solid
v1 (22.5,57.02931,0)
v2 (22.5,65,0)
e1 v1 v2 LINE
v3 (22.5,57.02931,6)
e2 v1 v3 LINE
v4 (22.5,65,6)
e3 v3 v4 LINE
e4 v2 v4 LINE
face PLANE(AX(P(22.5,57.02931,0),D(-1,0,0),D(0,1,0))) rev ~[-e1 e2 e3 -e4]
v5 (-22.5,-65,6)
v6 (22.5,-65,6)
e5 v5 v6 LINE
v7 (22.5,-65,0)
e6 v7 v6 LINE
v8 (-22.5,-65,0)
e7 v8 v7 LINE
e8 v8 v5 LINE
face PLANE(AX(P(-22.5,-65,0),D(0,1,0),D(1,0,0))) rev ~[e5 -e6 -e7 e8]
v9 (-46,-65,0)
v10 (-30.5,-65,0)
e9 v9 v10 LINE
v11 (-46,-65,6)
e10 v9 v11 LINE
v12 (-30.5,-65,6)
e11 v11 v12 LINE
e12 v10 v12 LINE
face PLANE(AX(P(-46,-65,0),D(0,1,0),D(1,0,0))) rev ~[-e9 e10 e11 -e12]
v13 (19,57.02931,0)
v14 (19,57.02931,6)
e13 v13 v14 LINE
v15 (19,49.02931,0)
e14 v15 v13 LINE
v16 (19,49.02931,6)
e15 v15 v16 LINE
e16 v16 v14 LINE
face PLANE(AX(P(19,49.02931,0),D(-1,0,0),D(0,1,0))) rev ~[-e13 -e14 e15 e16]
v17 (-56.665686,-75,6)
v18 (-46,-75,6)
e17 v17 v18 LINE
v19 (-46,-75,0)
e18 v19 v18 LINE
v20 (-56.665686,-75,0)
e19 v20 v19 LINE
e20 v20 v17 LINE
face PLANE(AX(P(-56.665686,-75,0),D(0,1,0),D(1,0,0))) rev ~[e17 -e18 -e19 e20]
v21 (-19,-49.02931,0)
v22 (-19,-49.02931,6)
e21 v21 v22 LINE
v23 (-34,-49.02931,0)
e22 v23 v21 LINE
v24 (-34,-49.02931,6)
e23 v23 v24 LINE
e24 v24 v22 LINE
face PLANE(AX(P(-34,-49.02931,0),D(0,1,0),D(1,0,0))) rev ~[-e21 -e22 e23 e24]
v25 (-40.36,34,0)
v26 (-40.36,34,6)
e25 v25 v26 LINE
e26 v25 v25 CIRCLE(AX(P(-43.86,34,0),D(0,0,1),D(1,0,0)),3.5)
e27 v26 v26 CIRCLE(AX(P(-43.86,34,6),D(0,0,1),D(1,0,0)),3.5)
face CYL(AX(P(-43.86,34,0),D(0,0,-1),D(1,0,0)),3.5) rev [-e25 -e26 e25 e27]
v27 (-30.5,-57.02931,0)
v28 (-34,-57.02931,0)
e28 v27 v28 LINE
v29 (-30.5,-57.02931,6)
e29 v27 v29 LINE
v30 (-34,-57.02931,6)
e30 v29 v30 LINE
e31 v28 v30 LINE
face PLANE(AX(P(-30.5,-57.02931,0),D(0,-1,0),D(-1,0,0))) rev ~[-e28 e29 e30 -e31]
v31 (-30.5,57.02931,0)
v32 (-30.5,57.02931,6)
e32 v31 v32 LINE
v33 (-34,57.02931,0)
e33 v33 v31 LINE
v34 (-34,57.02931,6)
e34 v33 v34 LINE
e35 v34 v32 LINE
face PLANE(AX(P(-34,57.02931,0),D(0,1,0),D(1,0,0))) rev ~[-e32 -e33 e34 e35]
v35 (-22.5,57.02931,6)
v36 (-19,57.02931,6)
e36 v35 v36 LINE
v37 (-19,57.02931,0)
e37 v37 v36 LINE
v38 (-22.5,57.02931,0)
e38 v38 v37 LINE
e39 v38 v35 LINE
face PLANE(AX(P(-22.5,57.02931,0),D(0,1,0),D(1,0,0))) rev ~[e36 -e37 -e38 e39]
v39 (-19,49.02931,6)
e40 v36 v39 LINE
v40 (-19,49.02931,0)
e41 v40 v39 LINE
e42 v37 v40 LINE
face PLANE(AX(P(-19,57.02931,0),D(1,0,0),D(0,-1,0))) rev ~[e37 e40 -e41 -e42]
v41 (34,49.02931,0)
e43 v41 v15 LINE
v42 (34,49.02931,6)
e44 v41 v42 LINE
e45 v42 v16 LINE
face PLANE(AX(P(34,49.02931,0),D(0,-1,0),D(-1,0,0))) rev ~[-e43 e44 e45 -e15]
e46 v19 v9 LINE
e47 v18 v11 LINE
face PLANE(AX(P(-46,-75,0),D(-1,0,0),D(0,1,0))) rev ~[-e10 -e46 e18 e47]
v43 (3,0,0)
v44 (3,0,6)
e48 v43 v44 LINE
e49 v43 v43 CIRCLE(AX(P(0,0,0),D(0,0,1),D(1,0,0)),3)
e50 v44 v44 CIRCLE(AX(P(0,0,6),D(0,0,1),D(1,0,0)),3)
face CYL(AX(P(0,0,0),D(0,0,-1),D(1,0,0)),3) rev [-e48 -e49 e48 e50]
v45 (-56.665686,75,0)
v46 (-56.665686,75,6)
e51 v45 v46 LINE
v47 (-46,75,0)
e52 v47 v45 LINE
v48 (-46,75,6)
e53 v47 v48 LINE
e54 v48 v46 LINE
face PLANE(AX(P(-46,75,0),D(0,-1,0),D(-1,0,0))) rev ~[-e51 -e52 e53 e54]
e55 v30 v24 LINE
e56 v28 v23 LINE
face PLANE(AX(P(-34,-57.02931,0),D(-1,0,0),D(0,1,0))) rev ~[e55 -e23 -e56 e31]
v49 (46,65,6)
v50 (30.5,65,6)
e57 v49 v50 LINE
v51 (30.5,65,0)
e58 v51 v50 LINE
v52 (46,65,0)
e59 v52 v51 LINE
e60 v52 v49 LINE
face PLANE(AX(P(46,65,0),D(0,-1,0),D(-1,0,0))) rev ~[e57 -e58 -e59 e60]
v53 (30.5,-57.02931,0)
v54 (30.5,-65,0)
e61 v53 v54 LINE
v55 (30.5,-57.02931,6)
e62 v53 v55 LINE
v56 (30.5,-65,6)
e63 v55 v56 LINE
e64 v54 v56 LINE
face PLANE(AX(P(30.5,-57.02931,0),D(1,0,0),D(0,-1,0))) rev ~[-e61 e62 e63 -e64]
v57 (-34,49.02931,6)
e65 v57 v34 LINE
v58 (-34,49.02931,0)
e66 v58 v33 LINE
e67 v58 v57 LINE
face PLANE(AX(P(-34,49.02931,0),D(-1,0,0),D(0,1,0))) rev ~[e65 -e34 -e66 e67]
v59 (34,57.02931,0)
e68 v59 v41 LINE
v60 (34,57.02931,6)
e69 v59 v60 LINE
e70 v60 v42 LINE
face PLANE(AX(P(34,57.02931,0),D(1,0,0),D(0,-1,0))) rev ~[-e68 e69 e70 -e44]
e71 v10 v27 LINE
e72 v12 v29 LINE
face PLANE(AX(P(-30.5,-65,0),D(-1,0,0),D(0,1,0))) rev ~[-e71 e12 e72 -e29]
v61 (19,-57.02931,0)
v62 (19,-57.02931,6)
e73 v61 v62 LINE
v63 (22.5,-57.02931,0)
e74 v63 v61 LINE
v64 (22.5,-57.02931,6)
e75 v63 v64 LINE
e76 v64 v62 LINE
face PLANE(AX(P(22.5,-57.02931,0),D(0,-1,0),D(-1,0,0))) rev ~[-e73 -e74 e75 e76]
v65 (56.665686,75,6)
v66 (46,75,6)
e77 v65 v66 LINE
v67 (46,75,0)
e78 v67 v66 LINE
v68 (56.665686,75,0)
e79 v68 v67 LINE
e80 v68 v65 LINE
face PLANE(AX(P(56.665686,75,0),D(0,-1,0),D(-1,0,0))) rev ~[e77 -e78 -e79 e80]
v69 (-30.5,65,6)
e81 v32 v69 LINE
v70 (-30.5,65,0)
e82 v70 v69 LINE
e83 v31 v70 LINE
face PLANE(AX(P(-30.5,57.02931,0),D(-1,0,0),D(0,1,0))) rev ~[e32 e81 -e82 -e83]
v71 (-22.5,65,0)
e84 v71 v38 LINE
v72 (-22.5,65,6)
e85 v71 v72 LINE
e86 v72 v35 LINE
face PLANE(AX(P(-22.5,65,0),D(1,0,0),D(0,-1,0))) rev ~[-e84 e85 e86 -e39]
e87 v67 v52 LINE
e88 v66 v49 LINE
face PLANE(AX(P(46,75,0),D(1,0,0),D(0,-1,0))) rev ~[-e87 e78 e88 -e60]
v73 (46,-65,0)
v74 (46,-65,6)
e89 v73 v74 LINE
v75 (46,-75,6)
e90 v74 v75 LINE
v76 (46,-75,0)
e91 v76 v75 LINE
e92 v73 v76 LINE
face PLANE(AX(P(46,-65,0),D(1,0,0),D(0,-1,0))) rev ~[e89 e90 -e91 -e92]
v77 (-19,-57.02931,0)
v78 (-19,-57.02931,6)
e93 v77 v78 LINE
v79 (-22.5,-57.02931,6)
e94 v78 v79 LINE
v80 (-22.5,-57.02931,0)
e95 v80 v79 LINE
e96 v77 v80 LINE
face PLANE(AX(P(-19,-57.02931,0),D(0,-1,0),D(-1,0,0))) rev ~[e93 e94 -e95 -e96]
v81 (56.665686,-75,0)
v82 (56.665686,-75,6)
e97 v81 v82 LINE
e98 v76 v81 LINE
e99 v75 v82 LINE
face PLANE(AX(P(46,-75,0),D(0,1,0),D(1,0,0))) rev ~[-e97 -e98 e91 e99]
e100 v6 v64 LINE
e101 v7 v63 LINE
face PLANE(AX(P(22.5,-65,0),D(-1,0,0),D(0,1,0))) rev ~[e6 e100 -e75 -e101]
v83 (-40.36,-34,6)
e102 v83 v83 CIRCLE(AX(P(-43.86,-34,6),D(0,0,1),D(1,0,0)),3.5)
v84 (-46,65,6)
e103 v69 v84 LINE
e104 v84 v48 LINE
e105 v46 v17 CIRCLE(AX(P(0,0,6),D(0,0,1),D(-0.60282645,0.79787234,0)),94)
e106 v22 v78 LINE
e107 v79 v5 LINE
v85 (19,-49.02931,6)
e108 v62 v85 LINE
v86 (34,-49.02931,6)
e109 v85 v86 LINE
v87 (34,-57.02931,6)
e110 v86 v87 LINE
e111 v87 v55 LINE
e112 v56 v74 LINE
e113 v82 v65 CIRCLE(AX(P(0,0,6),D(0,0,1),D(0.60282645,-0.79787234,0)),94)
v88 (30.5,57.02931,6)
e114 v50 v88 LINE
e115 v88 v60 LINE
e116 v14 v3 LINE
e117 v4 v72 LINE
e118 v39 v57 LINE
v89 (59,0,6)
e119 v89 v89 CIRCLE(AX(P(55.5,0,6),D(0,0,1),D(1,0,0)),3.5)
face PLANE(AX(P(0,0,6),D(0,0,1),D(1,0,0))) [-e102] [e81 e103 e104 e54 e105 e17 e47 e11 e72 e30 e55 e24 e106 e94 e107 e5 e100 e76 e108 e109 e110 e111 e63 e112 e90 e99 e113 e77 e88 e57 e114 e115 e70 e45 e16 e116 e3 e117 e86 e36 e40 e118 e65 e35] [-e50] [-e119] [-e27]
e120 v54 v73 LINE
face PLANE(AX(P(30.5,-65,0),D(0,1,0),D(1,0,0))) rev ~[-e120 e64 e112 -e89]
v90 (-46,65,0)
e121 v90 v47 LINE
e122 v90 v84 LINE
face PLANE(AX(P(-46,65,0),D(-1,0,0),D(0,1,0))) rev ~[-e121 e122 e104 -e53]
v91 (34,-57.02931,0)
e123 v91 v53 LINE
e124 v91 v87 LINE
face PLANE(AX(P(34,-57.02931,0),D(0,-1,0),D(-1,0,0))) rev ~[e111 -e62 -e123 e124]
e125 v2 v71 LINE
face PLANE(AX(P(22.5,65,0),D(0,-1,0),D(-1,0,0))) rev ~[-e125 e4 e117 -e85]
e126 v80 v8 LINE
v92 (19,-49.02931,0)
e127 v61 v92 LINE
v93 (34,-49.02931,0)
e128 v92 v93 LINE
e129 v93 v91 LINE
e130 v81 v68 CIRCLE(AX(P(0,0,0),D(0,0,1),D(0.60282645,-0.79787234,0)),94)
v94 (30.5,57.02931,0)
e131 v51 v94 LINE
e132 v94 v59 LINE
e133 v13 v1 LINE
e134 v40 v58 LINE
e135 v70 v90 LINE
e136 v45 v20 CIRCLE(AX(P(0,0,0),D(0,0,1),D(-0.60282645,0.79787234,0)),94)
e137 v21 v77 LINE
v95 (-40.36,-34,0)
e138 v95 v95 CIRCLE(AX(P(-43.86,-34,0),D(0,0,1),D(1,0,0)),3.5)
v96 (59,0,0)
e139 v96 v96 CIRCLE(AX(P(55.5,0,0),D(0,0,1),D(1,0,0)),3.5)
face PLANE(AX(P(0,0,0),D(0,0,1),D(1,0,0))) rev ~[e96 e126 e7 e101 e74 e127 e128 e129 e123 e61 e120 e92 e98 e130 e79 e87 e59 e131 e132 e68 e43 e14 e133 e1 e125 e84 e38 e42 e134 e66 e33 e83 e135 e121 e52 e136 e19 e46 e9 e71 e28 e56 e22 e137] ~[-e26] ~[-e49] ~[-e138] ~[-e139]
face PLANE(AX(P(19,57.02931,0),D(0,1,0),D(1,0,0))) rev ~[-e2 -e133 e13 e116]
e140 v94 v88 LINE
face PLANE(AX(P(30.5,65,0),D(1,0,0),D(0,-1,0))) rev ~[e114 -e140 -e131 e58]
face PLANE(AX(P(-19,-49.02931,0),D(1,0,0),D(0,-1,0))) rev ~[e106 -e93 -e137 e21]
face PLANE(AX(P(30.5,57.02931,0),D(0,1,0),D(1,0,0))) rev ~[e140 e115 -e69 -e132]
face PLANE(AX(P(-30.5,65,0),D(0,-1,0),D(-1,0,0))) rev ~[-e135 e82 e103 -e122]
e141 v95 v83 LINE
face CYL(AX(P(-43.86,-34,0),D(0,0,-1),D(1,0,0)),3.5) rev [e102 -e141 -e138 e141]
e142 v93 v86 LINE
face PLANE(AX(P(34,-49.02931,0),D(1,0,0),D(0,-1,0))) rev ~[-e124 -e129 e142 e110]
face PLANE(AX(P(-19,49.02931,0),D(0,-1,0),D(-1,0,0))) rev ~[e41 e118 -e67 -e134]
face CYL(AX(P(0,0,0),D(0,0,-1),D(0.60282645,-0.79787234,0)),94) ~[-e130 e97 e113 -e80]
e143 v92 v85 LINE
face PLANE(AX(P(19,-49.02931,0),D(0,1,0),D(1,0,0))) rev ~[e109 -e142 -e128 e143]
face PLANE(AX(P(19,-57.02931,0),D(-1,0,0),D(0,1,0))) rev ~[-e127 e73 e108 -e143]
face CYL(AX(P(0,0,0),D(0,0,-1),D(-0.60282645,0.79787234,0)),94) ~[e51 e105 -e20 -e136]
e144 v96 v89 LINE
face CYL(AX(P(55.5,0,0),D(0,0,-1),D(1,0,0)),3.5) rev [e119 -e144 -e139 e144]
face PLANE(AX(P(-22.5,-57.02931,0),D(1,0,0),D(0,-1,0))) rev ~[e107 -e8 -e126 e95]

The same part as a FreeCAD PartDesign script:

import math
import FreeCAD as App
import Part
import Sketcher

doc = App.newDocument("Part")
body = doc.addObject("PartDesign::Body", "Body")

# Sketch on XY plane
sketch1 = body.newObject("Sketcher::SketchObject", "Sketch")
sketch1.AttachmentSupport = (doc.getObject("XY_Plane"), [""])
sketch1.MapMode = "FlatFace"
sketch1.addGeometry([
    Part.LineSegment(App.Vector(-56.665686, -75, 0), App.Vector(-46, -75, 0)),  # 0
    Part.LineSegment(App.Vector(-46, -75, 0), App.Vector(-46, -65, 0)),  # 1
    Part.LineSegment(App.Vector(-46, -65, 0), App.Vector(-30.5, -65, 0)),  # 2
    Part.LineSegment(App.Vector(-30.5, -65, 0), App.Vector(-30.5, -57.02931, 0)),  # 3
    Part.LineSegment(App.Vector(-30.5, -57.02931, 0), App.Vector(-34, -57.02931, 0)),  # 4
    Part.LineSegment(App.Vector(-34, -57.02931, 0), App.Vector(-34, -49.02931, 0)),  # 5
    Part.LineSegment(App.Vector(-34, -49.02931, 0), App.Vector(-19, -49.02931, 0)),  # 6
    Part.LineSegment(App.Vector(-19, -49.02931, 0), App.Vector(-19, -57.02931, 0)),  # 7
    Part.LineSegment(App.Vector(-19, -57.02931, 0), App.Vector(-22.5, -57.02931, 0)),  # 8
    Part.LineSegment(App.Vector(-22.5, -57.02931, 0), App.Vector(-22.5, -65, 0)),  # 9
    Part.LineSegment(App.Vector(-22.5, -65, 0), App.Vector(22.5, -65, 0)),  # 10
    Part.LineSegment(App.Vector(22.5, -65, 0), App.Vector(22.5, -57.02931, 0)),  # 11
    Part.LineSegment(App.Vector(22.5, -57.02931, 0), App.Vector(19, -57.02931, 0)),  # 12
    Part.LineSegment(App.Vector(19, -57.02931, 0), App.Vector(19, -49.02931, 0)),  # 13
    Part.LineSegment(App.Vector(19, -49.02931, 0), App.Vector(34, -49.02931, 0)),  # 14
    Part.LineSegment(App.Vector(34, -49.02931, 0), App.Vector(34, -57.02931, 0)),  # 15
    Part.LineSegment(App.Vector(34, -57.02931, 0), App.Vector(30.5, -57.02931, 0)),  # 16
    Part.LineSegment(App.Vector(30.5, -57.02931, 0), App.Vector(30.5, -65, 0)),  # 17
    Part.LineSegment(App.Vector(30.5, -65, 0), App.Vector(46, -65, 0)),  # 18
    Part.LineSegment(App.Vector(46, -65, 0), App.Vector(46, -75, 0)),  # 19
    Part.LineSegment(App.Vector(46, -75, 0), App.Vector(56.665686, -75, 0)),  # 20
    Part.ArcOfCircle(Part.Circle(App.Vector(0, 0, 0), App.Vector(0, 0, 1), 94), math.radians(-52.927403), math.radians(52.927403)),  # 21
    Part.LineSegment(App.Vector(56.665686, 75, 0), App.Vector(46, 75, 0)),  # 22
    Part.LineSegment(App.Vector(46, 75, 0), App.Vector(46, 65, 0)),  # 23
    Part.LineSegment(App.Vector(46, 65, 0), App.Vector(30.5, 65, 0)),  # 24
    Part.LineSegment(App.Vector(30.5, 65, 0), App.Vector(30.5, 57.02931, 0)),  # 25
    Part.LineSegment(App.Vector(30.5, 57.02931, 0), App.Vector(34, 57.02931, 0)),  # 26
    Part.LineSegment(App.Vector(34, 57.02931, 0), App.Vector(34, 49.02931, 0)),  # 27
    Part.LineSegment(App.Vector(34, 49.02931, 0), App.Vector(19, 49.02931, 0)),  # 28
    Part.LineSegment(App.Vector(19, 49.02931, 0), App.Vector(19, 57.02931, 0)),  # 29
    Part.LineSegment(App.Vector(19, 57.02931, 0), App.Vector(22.5, 57.02931, 0)),  # 30
    Part.LineSegment(App.Vector(22.5, 57.02931, 0), App.Vector(22.5, 65, 0)),  # 31
    Part.LineSegment(App.Vector(22.5, 65, 0), App.Vector(-22.5, 65, 0)),  # 32
    Part.LineSegment(App.Vector(-22.5, 65, 0), App.Vector(-22.5, 57.02931, 0)),  # 33
    Part.LineSegment(App.Vector(-22.5, 57.02931, 0), App.Vector(-19, 57.02931, 0)),  # 34
    Part.LineSegment(App.Vector(-19, 57.02931, 0), App.Vector(-19, 49.02931, 0)),  # 35
    Part.LineSegment(App.Vector(-19, 49.02931, 0), App.Vector(-34, 49.02931, 0)),  # 36
    Part.LineSegment(App.Vector(-34, 49.02931, 0), App.Vector(-34, 57.02931, 0)),  # 37
    Part.LineSegment(App.Vector(-34, 57.02931, 0), App.Vector(-30.5, 57.02931, 0)),  # 38
    Part.LineSegment(App.Vector(-30.5, 57.02931, 0), App.Vector(-30.5, 65, 0)),  # 39
    Part.LineSegment(App.Vector(-30.5, 65, 0), App.Vector(-46, 65, 0)),  # 40
    Part.LineSegment(App.Vector(-46, 65, 0), App.Vector(-46, 75, 0)),  # 41
    Part.LineSegment(App.Vector(-46, 75, 0), App.Vector(-56.665686, 75, 0)),  # 42
    Part.ArcOfCircle(Part.Circle(App.Vector(0, 0, 0), App.Vector(0, 0, 1), 94), math.radians(127.072597), math.radians(232.927403)),  # 43
    Part.Circle(App.Vector(-43.86, -34, 0), App.Vector(0, 0, 1), 3.5),  # 44
    Part.Circle(App.Vector(0, 0, 0), App.Vector(0, 0, 1), 3),  # 45
    Part.Circle(App.Vector(-43.86, 34, 0), App.Vector(0, 0, 1), 3.5),  # 46
    Part.Circle(App.Vector(55.5, 0, 0), App.Vector(0, 0, 1), 3.5),  # 47
], False)
sketch1.addConstraint([
    Sketcher.Constraint("Coincident", 0, 2, 1, 1),
    Sketcher.Constraint("Coincident", 1, 2, 2, 1),
    Sketcher.Constraint("Coincident", 2, 2, 3, 1),
    Sketcher.Constraint("Coincident", 3, 2, 4, 1),
    Sketcher.Constraint("Coincident", 4, 2, 5, 1),
    Sketcher.Constraint("Coincident", 5, 2, 6, 1),
    Sketcher.Constraint("Coincident", 6, 2, 7, 1),
    Sketcher.Constraint("Coincident", 7, 2, 8, 1),
    Sketcher.Constraint("Coincident", 8, 2, 9, 1),
    Sketcher.Constraint("Coincident", 9, 2, 10, 1),
    Sketcher.Constraint("Coincident", 10, 2, 11, 1),
    Sketcher.Constraint("Coincident", 11, 2, 12, 1),
    Sketcher.Constraint("Coincident", 12, 2, 13, 1),
    Sketcher.Constraint("Coincident", 13, 2, 14, 1),
    Sketcher.Constraint("Coincident", 14, 2, 15, 1),
    Sketcher.Constraint("Coincident", 15, 2, 16, 1),
    Sketcher.Constraint("Coincident", 16, 2, 17, 1),
    Sketcher.Constraint("Coincident", 17, 2, 18, 1),
    Sketcher.Constraint("Coincident", 18, 2, 19, 1),
    Sketcher.Constraint("Coincident", 19, 2, 20, 1),
    Sketcher.Constraint("Coincident", 20, 2, 21, 1),
    Sketcher.Constraint("Coincident", 21, 2, 22, 1),
    Sketcher.Constraint("Coincident", 22, 2, 23, 1),
    Sketcher.Constraint("Coincident", 23, 2, 24, 1),
    Sketcher.Constraint("Coincident", 24, 2, 25, 1),
    Sketcher.Constraint("Coincident", 25, 2, 26, 1),
    Sketcher.Constraint("Coincident", 26, 2, 27, 1),
    Sketcher.Constraint("Coincident", 27, 2, 28, 1),
    Sketcher.Constraint("Coincident", 28, 2, 29, 1),
    Sketcher.Constraint("Coincident", 29, 2, 30, 1),
    Sketcher.Constraint("Coincident", 30, 2, 31, 1),
    Sketcher.Constraint("Coincident", 31, 2, 32, 1),
    Sketcher.Constraint("Coincident", 32, 2, 33, 1),
    Sketcher.Constraint("Coincident", 33, 2, 34, 1),
    Sketcher.Constraint("Coincident", 34, 2, 35, 1),
    Sketcher.Constraint("Coincident", 35, 2, 36, 1),
    Sketcher.Constraint("Coincident", 36, 2, 37, 1),
    Sketcher.Constraint("Coincident", 37, 2, 38, 1),
    Sketcher.Constraint("Coincident", 38, 2, 39, 1),
    Sketcher.Constraint("Coincident", 39, 2, 40, 1),
    Sketcher.Constraint("Coincident", 40, 2, 41, 1),
    Sketcher.Constraint("Coincident", 41, 2, 42, 1),
    Sketcher.Constraint("Coincident", 42, 2, 43, 1),
    Sketcher.Constraint("Coincident", 43, 2, 0, 1),
    Sketcher.Constraint("Horizontal", 0),
    Sketcher.Constraint("Vertical", 1),
    Sketcher.Constraint("Horizontal", 2),
    Sketcher.Constraint("Vertical", 3),
    Sketcher.Constraint("Horizontal", 4),
    Sketcher.Constraint("Vertical", 5),
    Sketcher.Constraint("Horizontal", 6),
    Sketcher.Constraint("Vertical", 7),
    Sketcher.Constraint("Horizontal", 8),
    Sketcher.Constraint("Vertical", 9),
    Sketcher.Constraint("Horizontal", 10),
    Sketcher.Constraint("Vertical", 11),
    Sketcher.Constraint("Horizontal", 12),
    Sketcher.Constraint("Vertical", 13),
    Sketcher.Constraint("Horizontal", 14),
    Sketcher.Constraint("Vertical", 15),
    Sketcher.Constraint("Horizontal", 16),
    Sketcher.Constraint("Vertical", 17),
    Sketcher.Constraint("Horizontal", 18),
    Sketcher.Constraint("Vertical", 19),
    Sketcher.Constraint("Horizontal", 20),
    Sketcher.Constraint("Horizontal", 22),
    Sketcher.Constraint("Vertical", 23),
    Sketcher.Constraint("Horizontal", 24),
    Sketcher.Constraint("Vertical", 25),
    Sketcher.Constraint("Horizontal", 26),
    Sketcher.Constraint("Vertical", 27),
    Sketcher.Constraint("Horizontal", 28),
    Sketcher.Constraint("Vertical", 29),
    Sketcher.Constraint("Horizontal", 30),
    Sketcher.Constraint("Vertical", 31),
    Sketcher.Constraint("Horizontal", 32),
    Sketcher.Constraint("Vertical", 33),
    Sketcher.Constraint("Horizontal", 34),
    Sketcher.Constraint("Vertical", 35),
    Sketcher.Constraint("Horizontal", 36),
    Sketcher.Constraint("Vertical", 37),
    Sketcher.Constraint("Horizontal", 38),
    Sketcher.Constraint("Vertical", 39),
    Sketcher.Constraint("Horizontal", 40),
    Sketcher.Constraint("Vertical", 41),
    Sketcher.Constraint("Horizontal", 42),
    Sketcher.Constraint("Coincident", 21, 3, -1, 1),
    Sketcher.Constraint("Coincident", 43, 3, -1, 1),
    Sketcher.Constraint("Coincident", 45, 3, -1, 1),
    Sketcher.Constraint("Equal", 21, 43),
    Sketcher.Constraint("Equal", 44, 46),
    Sketcher.Constraint("Equal", 46, 47),
    Sketcher.Constraint("Symmetric", 0, 2, 22, 2, -1, 1),
    Sketcher.Constraint("Symmetric", 2, 2, 24, 2, -1, 1),
    Sketcher.Constraint("Symmetric", 4, 2, 26, 2, -1, 1),
    Sketcher.Constraint("Symmetric", 6, 2, 28, 2, -1, 1),
    Sketcher.Constraint("Symmetric", 8, 2, 30, 2, -1, 1),
    Sketcher.Constraint("Symmetric", 10, 2, 32, 2, -1, 1),
    Sketcher.Constraint("Symmetric", 12, 2, 34, 2, -1, 1),
    Sketcher.Constraint("Symmetric", 14, 2, 36, 2, -1, 1),
    Sketcher.Constraint("Symmetric", 16, 2, 38, 2, -1, 1),
    Sketcher.Constraint("Symmetric", 18, 2, 40, 2, -1, 1),
    Sketcher.Constraint("Symmetric", 8, 2, 11, 2, -2),
    Sketcher.Constraint("Symmetric", 6, 2, 13, 2, -2),
    Sketcher.Constraint("Symmetric", 4, 2, 15, 2, -2),
    Sketcher.Constraint("Symmetric", 2, 2, 17, 2, -2),
    Sketcher.Constraint("Symmetric", 0, 2, 19, 2, -2),
    Sketcher.Constraint("Symmetric", 44, 3, 46, 3, -1),
    Sketcher.Constraint("PointOnObject", 47, 3, -1),
    Sketcher.Constraint("Horizontal", 4, 2, 7, 2),
    Sketcher.Constraint("Horizontal", 2, 2, 9, 2),
    Sketcher.Constraint("Horizontal", 22, 2, 41, 2),
    Sketcher.Constraint("Equal", 4, 8),
    Sketcher.Constraint("Diameter", 44, 7.0),
    Sketcher.Constraint("Diameter", 45, 6.0),
    Sketcher.Constraint("Radius", 21, 94.0),
    Sketcher.Constraint("DistanceX", 6, 1, 6, 2, 15.0),
    Sketcher.Constraint("DistanceX", 10, 1, 10, 2, 45.0),
    Sketcher.Constraint("DistanceY", 1, 1, 1, 2, 10.0),
    Sketcher.Constraint("DistanceY", 5, 1, 5, 2, 8.0),
    Sketcher.Constraint("DistanceX", 2, 1, 2, 2, 15.5),
    Sketcher.Constraint("DistanceX", 4, 2, 4, 1, 3.5),
    Sketcher.Constraint("DistanceY", 44, 3, -1, 1, 34.0),
    Sketcher.Constraint("DistanceY", 0, 2, -1, 1, 75.0),
    Sketcher.Constraint("DistanceX", 24, 2, 47, 3, 25.0),
    Sketcher.Constraint("DistanceX", 44, 3, -1, 1, 43.86),
    Sketcher.Constraint("DistanceY", 3, 1, 3, 2, 7.97069),
])
pad1 = body.newObject("PartDesign::Pad", "Pad")
pad1.Profile = sketch1
pad1.Length = 6

doc.recompute()
